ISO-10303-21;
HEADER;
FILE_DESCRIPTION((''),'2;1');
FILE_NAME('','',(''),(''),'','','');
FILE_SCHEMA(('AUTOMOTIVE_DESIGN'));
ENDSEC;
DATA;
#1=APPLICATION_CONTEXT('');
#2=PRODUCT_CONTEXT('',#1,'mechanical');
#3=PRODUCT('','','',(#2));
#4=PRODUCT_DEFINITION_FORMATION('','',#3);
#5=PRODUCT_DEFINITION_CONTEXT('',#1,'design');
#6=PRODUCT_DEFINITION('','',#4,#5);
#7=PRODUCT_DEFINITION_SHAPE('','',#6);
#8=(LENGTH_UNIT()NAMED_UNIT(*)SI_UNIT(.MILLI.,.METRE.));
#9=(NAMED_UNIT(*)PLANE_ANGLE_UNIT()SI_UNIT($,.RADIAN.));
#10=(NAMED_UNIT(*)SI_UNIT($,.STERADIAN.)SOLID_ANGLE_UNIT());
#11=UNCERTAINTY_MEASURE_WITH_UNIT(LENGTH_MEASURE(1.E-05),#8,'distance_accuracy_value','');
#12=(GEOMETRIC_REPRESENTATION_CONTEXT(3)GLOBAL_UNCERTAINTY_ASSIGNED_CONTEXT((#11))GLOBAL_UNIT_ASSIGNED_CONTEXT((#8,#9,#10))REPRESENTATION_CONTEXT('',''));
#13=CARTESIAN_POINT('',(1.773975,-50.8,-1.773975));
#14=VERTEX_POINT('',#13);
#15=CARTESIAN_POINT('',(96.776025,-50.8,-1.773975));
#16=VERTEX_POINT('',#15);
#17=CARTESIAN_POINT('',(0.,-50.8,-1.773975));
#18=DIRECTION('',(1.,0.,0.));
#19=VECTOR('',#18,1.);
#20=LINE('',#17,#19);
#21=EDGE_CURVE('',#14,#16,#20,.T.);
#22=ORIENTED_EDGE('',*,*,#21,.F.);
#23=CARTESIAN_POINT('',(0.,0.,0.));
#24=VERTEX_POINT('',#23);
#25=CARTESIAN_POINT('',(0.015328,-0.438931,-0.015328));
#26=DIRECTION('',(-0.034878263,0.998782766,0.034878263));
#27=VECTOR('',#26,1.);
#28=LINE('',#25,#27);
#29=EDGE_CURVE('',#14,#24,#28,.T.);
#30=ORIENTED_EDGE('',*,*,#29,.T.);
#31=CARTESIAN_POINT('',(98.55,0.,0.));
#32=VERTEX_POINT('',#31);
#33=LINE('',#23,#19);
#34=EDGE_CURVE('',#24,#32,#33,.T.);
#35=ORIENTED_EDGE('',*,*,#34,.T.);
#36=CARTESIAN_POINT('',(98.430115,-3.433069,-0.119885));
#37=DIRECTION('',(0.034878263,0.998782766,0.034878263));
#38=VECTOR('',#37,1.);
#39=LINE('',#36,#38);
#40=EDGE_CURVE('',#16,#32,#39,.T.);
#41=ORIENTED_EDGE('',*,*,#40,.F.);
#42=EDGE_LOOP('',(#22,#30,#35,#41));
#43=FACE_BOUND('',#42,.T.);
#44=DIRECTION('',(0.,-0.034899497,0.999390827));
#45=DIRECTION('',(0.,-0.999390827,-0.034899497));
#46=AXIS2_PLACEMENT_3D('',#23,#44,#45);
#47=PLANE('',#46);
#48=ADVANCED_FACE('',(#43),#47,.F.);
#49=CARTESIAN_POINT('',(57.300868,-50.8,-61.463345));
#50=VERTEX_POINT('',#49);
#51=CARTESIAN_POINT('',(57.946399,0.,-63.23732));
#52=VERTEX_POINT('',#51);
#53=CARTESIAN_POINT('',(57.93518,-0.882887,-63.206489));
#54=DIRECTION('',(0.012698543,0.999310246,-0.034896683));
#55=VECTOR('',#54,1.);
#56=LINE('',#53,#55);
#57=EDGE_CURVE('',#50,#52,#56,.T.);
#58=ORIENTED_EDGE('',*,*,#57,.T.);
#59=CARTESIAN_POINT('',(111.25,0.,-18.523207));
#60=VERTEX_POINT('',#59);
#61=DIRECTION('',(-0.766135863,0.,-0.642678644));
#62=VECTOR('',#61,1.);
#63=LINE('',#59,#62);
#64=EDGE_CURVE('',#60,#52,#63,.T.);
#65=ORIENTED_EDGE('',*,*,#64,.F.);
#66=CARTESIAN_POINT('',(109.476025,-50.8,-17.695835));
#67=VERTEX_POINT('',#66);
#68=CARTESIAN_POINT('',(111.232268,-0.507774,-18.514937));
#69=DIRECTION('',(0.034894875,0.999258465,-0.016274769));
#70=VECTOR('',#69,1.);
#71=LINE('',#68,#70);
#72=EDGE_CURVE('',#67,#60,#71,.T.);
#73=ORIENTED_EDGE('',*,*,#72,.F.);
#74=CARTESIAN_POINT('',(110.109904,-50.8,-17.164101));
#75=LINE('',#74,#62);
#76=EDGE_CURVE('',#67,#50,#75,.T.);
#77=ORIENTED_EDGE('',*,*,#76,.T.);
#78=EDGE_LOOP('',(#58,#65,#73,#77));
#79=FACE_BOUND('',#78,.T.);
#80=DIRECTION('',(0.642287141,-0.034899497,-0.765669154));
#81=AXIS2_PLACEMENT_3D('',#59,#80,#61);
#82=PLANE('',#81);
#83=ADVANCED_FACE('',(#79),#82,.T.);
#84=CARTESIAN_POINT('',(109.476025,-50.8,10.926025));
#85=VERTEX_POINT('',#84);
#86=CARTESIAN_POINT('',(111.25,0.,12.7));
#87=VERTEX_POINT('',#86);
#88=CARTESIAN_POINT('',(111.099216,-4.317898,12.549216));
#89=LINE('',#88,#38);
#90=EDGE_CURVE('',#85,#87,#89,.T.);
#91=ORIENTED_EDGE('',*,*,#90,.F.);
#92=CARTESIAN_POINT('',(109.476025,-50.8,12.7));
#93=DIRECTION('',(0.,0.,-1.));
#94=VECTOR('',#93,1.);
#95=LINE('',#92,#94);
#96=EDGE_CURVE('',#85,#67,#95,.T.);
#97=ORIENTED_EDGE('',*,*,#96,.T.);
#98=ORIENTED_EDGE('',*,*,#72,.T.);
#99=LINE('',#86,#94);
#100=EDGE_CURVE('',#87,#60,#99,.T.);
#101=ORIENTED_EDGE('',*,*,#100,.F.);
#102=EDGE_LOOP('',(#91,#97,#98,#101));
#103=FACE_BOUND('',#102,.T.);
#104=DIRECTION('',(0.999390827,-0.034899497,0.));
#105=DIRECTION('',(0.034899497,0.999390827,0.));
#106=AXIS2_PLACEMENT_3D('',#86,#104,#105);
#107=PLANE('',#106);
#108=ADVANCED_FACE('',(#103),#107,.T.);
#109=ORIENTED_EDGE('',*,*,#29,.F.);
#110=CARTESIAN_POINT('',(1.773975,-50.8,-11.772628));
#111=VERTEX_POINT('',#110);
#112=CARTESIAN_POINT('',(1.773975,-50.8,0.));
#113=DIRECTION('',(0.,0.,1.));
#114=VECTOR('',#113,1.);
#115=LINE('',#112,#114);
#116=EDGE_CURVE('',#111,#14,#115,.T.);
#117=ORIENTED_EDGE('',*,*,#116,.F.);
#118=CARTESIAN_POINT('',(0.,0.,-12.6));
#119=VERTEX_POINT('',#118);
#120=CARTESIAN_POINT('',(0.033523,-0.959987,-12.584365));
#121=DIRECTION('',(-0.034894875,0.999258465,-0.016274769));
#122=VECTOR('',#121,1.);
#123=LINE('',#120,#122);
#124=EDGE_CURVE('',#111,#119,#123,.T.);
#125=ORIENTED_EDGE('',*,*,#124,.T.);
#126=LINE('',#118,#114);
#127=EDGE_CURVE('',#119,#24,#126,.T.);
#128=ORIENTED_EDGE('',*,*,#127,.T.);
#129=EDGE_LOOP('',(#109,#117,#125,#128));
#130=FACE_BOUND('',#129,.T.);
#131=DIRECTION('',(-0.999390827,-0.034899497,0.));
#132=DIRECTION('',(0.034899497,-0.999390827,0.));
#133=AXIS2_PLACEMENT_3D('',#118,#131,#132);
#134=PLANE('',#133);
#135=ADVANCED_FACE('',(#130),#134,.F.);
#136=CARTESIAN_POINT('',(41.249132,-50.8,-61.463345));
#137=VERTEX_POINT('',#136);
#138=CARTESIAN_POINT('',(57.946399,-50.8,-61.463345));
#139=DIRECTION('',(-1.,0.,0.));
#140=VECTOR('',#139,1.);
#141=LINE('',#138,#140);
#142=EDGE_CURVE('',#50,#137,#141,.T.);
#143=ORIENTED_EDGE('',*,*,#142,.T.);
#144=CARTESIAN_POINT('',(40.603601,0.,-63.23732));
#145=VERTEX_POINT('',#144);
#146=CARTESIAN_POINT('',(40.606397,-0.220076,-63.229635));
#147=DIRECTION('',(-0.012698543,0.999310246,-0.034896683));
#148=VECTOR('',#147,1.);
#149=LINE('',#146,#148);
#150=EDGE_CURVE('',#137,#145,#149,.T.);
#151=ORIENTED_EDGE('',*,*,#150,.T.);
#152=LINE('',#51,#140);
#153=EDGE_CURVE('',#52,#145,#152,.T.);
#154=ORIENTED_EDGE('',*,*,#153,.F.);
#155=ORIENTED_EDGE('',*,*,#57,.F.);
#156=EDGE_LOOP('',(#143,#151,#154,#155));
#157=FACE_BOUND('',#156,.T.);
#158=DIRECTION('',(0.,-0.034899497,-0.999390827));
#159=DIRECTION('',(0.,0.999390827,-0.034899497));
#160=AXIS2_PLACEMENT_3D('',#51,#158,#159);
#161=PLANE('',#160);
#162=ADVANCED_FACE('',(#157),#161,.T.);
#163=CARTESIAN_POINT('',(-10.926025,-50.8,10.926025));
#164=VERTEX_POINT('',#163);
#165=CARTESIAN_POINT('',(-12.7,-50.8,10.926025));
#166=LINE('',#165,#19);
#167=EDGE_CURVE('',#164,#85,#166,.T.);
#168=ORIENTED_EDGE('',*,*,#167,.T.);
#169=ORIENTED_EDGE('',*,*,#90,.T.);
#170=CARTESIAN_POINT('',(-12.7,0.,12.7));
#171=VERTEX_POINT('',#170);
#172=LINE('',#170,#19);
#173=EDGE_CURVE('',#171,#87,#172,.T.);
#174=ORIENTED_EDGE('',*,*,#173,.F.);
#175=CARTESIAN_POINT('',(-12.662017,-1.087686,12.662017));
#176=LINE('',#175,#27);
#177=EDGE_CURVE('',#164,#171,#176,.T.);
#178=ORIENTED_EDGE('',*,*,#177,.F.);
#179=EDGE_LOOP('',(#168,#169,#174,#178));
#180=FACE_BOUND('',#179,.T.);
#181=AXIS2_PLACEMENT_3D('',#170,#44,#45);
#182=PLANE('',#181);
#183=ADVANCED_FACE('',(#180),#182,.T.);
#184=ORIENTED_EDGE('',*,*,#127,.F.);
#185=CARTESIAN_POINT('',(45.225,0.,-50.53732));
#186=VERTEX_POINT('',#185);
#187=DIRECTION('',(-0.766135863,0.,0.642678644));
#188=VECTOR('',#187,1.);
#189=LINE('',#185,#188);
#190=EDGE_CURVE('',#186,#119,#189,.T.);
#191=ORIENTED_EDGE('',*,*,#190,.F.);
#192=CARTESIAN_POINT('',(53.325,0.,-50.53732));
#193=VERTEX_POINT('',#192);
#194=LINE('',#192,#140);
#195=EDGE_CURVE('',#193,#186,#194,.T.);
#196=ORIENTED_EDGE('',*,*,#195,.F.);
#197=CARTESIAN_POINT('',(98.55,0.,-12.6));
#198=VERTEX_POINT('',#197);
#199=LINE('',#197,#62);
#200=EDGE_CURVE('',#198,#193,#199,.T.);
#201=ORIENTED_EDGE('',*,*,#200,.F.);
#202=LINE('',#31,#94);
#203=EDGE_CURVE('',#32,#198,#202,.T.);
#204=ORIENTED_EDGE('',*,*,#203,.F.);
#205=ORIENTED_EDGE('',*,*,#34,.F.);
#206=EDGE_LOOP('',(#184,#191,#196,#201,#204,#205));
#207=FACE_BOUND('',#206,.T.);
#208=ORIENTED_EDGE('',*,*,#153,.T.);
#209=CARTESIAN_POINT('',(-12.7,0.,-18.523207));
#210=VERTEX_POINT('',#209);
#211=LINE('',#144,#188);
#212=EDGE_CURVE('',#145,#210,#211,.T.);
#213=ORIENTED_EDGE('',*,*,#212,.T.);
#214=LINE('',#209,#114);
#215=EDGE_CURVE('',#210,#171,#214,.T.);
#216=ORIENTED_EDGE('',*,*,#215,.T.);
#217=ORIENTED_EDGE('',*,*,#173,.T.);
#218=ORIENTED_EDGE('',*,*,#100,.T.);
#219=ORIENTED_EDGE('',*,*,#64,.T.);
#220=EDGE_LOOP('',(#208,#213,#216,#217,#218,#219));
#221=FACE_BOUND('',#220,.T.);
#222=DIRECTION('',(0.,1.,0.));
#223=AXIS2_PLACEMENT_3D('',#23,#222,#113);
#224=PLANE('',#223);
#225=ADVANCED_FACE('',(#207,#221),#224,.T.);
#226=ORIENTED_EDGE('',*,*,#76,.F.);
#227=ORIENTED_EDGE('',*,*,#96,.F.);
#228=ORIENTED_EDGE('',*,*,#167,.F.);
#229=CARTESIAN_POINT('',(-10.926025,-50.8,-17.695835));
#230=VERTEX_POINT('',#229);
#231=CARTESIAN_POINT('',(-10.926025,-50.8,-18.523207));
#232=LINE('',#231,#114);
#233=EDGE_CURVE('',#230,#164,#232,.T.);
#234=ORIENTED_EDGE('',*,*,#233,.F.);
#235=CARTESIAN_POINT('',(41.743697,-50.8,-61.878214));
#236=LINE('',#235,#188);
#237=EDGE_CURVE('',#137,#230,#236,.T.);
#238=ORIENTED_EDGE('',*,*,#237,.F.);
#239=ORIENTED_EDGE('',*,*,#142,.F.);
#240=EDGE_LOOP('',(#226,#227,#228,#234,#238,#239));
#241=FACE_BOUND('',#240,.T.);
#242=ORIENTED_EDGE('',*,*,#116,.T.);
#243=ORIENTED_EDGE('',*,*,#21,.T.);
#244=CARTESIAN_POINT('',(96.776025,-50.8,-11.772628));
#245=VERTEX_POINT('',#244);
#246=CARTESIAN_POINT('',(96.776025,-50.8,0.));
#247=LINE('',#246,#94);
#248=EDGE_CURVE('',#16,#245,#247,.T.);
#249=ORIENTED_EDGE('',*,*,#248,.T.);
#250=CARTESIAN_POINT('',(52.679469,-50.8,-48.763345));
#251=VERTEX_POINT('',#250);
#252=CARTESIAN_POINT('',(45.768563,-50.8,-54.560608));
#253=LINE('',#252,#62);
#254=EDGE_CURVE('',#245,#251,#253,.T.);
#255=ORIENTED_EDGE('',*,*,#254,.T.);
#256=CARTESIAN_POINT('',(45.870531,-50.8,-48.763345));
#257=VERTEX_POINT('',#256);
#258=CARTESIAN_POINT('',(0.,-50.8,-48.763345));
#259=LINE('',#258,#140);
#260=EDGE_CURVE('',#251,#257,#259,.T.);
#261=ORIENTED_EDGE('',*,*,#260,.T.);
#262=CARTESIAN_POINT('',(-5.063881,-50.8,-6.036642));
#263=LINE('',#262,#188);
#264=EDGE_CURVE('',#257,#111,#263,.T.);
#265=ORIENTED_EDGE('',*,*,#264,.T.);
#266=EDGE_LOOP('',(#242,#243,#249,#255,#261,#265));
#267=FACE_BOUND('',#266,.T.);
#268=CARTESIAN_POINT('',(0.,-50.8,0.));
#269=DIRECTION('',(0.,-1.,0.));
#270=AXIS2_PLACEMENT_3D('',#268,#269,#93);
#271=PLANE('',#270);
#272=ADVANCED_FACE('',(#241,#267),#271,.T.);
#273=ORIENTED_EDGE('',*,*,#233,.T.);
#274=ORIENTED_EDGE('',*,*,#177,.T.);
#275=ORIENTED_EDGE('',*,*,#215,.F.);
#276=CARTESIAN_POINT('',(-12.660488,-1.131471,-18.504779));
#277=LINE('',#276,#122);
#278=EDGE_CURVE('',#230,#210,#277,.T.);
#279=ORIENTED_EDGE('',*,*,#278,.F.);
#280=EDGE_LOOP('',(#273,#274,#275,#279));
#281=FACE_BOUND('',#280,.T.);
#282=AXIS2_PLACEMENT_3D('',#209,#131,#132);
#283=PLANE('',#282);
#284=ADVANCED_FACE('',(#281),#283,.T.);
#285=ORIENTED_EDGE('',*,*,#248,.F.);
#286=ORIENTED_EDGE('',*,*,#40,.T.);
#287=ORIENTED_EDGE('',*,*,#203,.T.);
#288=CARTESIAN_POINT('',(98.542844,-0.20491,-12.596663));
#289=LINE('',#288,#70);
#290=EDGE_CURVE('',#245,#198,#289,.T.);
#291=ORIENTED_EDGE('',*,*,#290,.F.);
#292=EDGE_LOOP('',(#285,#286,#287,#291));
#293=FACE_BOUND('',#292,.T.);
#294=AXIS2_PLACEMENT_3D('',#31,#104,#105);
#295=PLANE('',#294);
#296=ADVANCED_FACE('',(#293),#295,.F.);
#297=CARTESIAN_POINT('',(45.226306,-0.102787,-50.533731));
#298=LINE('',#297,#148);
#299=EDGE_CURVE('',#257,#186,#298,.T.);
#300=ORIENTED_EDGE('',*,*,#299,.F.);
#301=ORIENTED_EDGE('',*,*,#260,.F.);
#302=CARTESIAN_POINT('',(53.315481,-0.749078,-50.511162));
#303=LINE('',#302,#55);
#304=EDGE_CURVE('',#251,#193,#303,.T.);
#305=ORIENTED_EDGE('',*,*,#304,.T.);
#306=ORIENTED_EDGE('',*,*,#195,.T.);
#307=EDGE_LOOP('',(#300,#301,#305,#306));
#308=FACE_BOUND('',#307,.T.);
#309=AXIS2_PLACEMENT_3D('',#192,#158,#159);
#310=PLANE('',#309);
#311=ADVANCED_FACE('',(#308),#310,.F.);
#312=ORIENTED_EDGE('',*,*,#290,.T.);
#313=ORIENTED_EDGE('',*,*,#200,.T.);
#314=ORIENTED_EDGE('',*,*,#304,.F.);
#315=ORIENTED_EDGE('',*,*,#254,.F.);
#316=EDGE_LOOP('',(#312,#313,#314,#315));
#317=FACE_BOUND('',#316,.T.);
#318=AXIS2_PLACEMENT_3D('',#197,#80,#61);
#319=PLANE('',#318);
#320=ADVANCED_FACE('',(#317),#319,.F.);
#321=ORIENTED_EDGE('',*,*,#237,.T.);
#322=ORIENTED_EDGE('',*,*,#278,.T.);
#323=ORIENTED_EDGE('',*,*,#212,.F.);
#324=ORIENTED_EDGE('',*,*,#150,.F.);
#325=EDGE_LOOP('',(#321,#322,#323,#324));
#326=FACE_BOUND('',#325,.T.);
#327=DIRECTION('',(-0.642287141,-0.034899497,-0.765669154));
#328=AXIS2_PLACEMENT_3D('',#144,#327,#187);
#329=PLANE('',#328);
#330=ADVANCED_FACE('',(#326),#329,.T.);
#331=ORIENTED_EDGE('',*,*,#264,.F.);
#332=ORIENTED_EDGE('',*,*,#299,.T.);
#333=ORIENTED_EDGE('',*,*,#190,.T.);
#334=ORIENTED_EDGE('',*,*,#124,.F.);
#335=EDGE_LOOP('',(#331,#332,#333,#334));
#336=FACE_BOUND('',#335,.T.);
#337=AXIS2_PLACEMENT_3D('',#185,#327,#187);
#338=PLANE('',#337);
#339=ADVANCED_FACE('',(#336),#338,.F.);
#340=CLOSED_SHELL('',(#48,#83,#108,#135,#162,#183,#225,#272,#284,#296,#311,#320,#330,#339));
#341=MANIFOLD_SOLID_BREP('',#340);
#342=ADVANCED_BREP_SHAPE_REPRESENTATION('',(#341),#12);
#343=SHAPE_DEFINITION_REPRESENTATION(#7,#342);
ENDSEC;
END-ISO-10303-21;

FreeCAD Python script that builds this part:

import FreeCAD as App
import Part
import Sketcher

V = App.Vector


def add_polygon(sketch, points):
    """Adds a closed chain of lines whose ends are joined by coincident constraints."""
    first, n = sketch.GeometryCount, len(points)
    for a, b in zip(points, points[1:] + points[:1]):
        sketch.addGeometry(Part.LineSegment(App.Vector(*a, 0), App.Vector(*b, 0)), False)
    for i in range(n):
        sketch.addConstraint(Sketcher.Constraint("Coincident", first + i, 2, first + (i + 1) % n, 1))

doc = App.newDocument("Part")
params = doc.addObject("Spreadsheet::Sheet", "Params")
for row, (alias, value) in enumerate([
    ("sketch1_width", "8.1 mm"),
    ("sketch1_height", "12.6 mm"),
    ("sketch1_width2", "98.55 mm"),
    ("sketch1_length", "59.03 mm"),
    ("pad1_length", "2.54 mm"),
    ("sketch2_width", "123.95 mm"),
    ("pad2_length", "50.8 mm"),
    ("pad2_taper", "-2 deg"),
    ("sketch3_width", "8.1 mm"),
    ("sketch3_height", "12.6 mm"),
    ("sketch3_width2", "98.55 mm"),
    ("sketch3_length", "59.03 mm"),
    ("pocket1_length", "50.8 mm"),
    ("pocket1_taper", "-2 deg"),
], start=1):
    params.set(f"A{row}", alias)
    params.set(f"B{row}", "=" + value)
    params.setAlias(f"B{row}", alias)

body = doc.addObject("PartDesign::Body", "Body")

# Sketch on XZ plane
sketch1 = doc.addObject("Sketcher::SketchObject", "Sketch")
body.addObject(sketch1)
sketch1.AttachmentSupport = (doc.XZ_Plane, [""])
sketch1.MapMode = "FlatFace"
add_polygon(sketch1, [(0, 0), (98.55, 0), (98.55, -12.6), (53.325, -50.53732), (45.225, -50.53732), (0, -12.6)])  # lines 0-5
sketch1.addConstraint(Sketcher.Constraint("Horizontal", 0))
sketch1.addConstraint(Sketcher.Constraint("Vertical", 1))
sketch1.addConstraint(Sketcher.Constraint("Horizontal", 3))
sketch1.addConstraint(Sketcher.Constraint("Vertical", 5))
sketch1.addConstraint(Sketcher.Constraint("Coincident", 5, 2, -1, 1))
sketch1.addConstraint(Sketcher.Constraint("Horizontal", 1, 2, 4, 2))
sketch1.addConstraint(Sketcher.Constraint("Equal", 2, 4))
sketch1.addConstraint(Sketcher.Constraint("DistanceX", 3, 2, 3, 1, 8.1))
sketch1.addConstraint(Sketcher.Constraint("DistanceY", 1, 2, 1, 1, 12.6))
sketch1.addConstraint(Sketcher.Constraint("DistanceX", 0, 1, 0, 2, 98.55))
sketch1.addConstraint(Sketcher.Constraint("Distance", 2, 59.03))
sketch1.setExpression("Constraints[13]", "Params.sketch1_width")
sketch1.setExpression("Constraints[14]", "Params.sketch1_height")
sketch1.setExpression("Constraints[15]", "Params.sketch1_width2")
sketch1.setExpression("Constraints[16]", "Params.sketch1_length")
pad1 = doc.addObject("PartDesign::Pad", "Pad")
body.addObject(pad1)
pad1.Profile = sketch1
pad1.setExpression("Length", "Params.pad1_length")

# Sketch on XZ plane
sketch2 = doc.addObject("Sketcher::SketchObject", "Sketch001")
body.addObject(sketch2)
sketch2.AttachmentSupport = (doc.XZ_Plane, [""])
sketch2.MapMode = "FlatFace"
add_polygon(sketch2, [(-12.7, -18.523207), (-12.7, 12.7), (111.25, 12.7), (111.25, -18.523207), (57.946399, -63.23732), (40.603601, -63.23732)])  # lines 0-5
sketch2.addConstraint(Sketcher.Constraint("Vertical", 0))
sketch2.addConstraint(Sketcher.Constraint("Horizontal", 1))
sketch2.addConstraint(Sketcher.Constraint("Vertical", 2))
sketch2.addConstraint(Sketcher.Constraint("Horizontal", 4))
sketch2.addConstraint(Sketcher.Constraint("Horizontal", 2, 2, 5, 2))
sketch2.addConstraint(Sketcher.Constraint("Equal", 3, 5))
sketch2.addConstraint(Sketcher.Constraint("DistanceX", 1, 1, 1, 2, 123.95))
sketch2.addConstraint(Sketcher.Constraint("DistanceX", 0, 2, -1, 1, 12.7))
sketch2.addConstraint(Sketcher.Constraint("DistanceY", -1, 1, 0, 2, 12.7))
sketch2.addConstraint(Sketcher.Constraint("DistanceX", 4, 2, 4, 1, 17.342798))
sketch2.addConstraint(Sketcher.Constraint("DistanceY", 0, 1, 0, 2, 31.223207))
sketch2.addConstraint(Sketcher.Constraint("DistanceY", 3, 2, -1, 1, 63.23732))
sketch2.setExpression("Constraints[12]", "Params.sketch2_width")
pad2 = doc.addObject("PartDesign::Pad", "Pad001")
body.addObject(pad2)
pad2.Profile = sketch2
pad2.setExpression("Length", "Params.pad2_length")
pad2.setExpression("TaperAngle", "Params.pad2_taper")

# Sketch on XZ plane
sketch3 = doc.addObject("Sketcher::SketchObject", "Sketch002")
body.addObject(sketch3)
sketch3.AttachmentSupport = (doc.XZ_Plane, [""])
sketch3.MapMode = "FlatFace"
add_polygon(sketch3, [(0, 0), (98.55, 0), (98.55, -12.6), (53.325, -50.53732), (45.225, -50.53732), (0, -12.6)])  # lines 0-5
sketch3.addConstraint(Sketcher.Constraint("Horizontal", 0))
sketch3.addConstraint(Sketcher.Constraint("Vertical", 1))
sketch3.addConstraint(Sketcher.Constraint("Horizontal", 3))
sketch3.addConstraint(Sketcher.Constraint("Vertical", 5))
sketch3.addConstraint(Sketcher.Constraint("Coincident", 5, 2, -1, 1))
sketch3.addConstraint(Sketcher.Constraint("Horizontal", 1, 2, 4, 2))
sketch3.addConstraint(Sketcher.Constraint("Equal", 2, 4))
sketch3.addConstraint(Sketcher.Constraint("DistanceX", 3, 2, 3, 1, 8.1))
sketch3.addConstraint(Sketcher.Constraint("DistanceY", 1, 2, 1, 1, 12.6))
sketch3.addConstraint(Sketcher.Constraint("DistanceX", 0, 1, 0, 2, 98.55))
sketch3.addConstraint(Sketcher.Constraint("Distance", 2, 59.03))
sketch3.setExpression("Constraints[13]", "Params.sketch3_width")
sketch3.setExpression("Constraints[14]", "Params.sketch3_height")
sketch3.setExpression("Constraints[15]", "Params.sketch3_width2")
sketch3.setExpression("Constraints[16]", "Params.sketch3_length")
pocket1 = doc.addObject("PartDesign::Pocket", "Pocket")
body.addObject(pocket1)
pocket1.Profile = sketch3
pocket1.setExpression("Length", "Params.pocket1_length")
pocket1.Reversed = True
pocket1.setExpression("TaperAngle", "Params.pocket1_taper")

doc.recompute()
